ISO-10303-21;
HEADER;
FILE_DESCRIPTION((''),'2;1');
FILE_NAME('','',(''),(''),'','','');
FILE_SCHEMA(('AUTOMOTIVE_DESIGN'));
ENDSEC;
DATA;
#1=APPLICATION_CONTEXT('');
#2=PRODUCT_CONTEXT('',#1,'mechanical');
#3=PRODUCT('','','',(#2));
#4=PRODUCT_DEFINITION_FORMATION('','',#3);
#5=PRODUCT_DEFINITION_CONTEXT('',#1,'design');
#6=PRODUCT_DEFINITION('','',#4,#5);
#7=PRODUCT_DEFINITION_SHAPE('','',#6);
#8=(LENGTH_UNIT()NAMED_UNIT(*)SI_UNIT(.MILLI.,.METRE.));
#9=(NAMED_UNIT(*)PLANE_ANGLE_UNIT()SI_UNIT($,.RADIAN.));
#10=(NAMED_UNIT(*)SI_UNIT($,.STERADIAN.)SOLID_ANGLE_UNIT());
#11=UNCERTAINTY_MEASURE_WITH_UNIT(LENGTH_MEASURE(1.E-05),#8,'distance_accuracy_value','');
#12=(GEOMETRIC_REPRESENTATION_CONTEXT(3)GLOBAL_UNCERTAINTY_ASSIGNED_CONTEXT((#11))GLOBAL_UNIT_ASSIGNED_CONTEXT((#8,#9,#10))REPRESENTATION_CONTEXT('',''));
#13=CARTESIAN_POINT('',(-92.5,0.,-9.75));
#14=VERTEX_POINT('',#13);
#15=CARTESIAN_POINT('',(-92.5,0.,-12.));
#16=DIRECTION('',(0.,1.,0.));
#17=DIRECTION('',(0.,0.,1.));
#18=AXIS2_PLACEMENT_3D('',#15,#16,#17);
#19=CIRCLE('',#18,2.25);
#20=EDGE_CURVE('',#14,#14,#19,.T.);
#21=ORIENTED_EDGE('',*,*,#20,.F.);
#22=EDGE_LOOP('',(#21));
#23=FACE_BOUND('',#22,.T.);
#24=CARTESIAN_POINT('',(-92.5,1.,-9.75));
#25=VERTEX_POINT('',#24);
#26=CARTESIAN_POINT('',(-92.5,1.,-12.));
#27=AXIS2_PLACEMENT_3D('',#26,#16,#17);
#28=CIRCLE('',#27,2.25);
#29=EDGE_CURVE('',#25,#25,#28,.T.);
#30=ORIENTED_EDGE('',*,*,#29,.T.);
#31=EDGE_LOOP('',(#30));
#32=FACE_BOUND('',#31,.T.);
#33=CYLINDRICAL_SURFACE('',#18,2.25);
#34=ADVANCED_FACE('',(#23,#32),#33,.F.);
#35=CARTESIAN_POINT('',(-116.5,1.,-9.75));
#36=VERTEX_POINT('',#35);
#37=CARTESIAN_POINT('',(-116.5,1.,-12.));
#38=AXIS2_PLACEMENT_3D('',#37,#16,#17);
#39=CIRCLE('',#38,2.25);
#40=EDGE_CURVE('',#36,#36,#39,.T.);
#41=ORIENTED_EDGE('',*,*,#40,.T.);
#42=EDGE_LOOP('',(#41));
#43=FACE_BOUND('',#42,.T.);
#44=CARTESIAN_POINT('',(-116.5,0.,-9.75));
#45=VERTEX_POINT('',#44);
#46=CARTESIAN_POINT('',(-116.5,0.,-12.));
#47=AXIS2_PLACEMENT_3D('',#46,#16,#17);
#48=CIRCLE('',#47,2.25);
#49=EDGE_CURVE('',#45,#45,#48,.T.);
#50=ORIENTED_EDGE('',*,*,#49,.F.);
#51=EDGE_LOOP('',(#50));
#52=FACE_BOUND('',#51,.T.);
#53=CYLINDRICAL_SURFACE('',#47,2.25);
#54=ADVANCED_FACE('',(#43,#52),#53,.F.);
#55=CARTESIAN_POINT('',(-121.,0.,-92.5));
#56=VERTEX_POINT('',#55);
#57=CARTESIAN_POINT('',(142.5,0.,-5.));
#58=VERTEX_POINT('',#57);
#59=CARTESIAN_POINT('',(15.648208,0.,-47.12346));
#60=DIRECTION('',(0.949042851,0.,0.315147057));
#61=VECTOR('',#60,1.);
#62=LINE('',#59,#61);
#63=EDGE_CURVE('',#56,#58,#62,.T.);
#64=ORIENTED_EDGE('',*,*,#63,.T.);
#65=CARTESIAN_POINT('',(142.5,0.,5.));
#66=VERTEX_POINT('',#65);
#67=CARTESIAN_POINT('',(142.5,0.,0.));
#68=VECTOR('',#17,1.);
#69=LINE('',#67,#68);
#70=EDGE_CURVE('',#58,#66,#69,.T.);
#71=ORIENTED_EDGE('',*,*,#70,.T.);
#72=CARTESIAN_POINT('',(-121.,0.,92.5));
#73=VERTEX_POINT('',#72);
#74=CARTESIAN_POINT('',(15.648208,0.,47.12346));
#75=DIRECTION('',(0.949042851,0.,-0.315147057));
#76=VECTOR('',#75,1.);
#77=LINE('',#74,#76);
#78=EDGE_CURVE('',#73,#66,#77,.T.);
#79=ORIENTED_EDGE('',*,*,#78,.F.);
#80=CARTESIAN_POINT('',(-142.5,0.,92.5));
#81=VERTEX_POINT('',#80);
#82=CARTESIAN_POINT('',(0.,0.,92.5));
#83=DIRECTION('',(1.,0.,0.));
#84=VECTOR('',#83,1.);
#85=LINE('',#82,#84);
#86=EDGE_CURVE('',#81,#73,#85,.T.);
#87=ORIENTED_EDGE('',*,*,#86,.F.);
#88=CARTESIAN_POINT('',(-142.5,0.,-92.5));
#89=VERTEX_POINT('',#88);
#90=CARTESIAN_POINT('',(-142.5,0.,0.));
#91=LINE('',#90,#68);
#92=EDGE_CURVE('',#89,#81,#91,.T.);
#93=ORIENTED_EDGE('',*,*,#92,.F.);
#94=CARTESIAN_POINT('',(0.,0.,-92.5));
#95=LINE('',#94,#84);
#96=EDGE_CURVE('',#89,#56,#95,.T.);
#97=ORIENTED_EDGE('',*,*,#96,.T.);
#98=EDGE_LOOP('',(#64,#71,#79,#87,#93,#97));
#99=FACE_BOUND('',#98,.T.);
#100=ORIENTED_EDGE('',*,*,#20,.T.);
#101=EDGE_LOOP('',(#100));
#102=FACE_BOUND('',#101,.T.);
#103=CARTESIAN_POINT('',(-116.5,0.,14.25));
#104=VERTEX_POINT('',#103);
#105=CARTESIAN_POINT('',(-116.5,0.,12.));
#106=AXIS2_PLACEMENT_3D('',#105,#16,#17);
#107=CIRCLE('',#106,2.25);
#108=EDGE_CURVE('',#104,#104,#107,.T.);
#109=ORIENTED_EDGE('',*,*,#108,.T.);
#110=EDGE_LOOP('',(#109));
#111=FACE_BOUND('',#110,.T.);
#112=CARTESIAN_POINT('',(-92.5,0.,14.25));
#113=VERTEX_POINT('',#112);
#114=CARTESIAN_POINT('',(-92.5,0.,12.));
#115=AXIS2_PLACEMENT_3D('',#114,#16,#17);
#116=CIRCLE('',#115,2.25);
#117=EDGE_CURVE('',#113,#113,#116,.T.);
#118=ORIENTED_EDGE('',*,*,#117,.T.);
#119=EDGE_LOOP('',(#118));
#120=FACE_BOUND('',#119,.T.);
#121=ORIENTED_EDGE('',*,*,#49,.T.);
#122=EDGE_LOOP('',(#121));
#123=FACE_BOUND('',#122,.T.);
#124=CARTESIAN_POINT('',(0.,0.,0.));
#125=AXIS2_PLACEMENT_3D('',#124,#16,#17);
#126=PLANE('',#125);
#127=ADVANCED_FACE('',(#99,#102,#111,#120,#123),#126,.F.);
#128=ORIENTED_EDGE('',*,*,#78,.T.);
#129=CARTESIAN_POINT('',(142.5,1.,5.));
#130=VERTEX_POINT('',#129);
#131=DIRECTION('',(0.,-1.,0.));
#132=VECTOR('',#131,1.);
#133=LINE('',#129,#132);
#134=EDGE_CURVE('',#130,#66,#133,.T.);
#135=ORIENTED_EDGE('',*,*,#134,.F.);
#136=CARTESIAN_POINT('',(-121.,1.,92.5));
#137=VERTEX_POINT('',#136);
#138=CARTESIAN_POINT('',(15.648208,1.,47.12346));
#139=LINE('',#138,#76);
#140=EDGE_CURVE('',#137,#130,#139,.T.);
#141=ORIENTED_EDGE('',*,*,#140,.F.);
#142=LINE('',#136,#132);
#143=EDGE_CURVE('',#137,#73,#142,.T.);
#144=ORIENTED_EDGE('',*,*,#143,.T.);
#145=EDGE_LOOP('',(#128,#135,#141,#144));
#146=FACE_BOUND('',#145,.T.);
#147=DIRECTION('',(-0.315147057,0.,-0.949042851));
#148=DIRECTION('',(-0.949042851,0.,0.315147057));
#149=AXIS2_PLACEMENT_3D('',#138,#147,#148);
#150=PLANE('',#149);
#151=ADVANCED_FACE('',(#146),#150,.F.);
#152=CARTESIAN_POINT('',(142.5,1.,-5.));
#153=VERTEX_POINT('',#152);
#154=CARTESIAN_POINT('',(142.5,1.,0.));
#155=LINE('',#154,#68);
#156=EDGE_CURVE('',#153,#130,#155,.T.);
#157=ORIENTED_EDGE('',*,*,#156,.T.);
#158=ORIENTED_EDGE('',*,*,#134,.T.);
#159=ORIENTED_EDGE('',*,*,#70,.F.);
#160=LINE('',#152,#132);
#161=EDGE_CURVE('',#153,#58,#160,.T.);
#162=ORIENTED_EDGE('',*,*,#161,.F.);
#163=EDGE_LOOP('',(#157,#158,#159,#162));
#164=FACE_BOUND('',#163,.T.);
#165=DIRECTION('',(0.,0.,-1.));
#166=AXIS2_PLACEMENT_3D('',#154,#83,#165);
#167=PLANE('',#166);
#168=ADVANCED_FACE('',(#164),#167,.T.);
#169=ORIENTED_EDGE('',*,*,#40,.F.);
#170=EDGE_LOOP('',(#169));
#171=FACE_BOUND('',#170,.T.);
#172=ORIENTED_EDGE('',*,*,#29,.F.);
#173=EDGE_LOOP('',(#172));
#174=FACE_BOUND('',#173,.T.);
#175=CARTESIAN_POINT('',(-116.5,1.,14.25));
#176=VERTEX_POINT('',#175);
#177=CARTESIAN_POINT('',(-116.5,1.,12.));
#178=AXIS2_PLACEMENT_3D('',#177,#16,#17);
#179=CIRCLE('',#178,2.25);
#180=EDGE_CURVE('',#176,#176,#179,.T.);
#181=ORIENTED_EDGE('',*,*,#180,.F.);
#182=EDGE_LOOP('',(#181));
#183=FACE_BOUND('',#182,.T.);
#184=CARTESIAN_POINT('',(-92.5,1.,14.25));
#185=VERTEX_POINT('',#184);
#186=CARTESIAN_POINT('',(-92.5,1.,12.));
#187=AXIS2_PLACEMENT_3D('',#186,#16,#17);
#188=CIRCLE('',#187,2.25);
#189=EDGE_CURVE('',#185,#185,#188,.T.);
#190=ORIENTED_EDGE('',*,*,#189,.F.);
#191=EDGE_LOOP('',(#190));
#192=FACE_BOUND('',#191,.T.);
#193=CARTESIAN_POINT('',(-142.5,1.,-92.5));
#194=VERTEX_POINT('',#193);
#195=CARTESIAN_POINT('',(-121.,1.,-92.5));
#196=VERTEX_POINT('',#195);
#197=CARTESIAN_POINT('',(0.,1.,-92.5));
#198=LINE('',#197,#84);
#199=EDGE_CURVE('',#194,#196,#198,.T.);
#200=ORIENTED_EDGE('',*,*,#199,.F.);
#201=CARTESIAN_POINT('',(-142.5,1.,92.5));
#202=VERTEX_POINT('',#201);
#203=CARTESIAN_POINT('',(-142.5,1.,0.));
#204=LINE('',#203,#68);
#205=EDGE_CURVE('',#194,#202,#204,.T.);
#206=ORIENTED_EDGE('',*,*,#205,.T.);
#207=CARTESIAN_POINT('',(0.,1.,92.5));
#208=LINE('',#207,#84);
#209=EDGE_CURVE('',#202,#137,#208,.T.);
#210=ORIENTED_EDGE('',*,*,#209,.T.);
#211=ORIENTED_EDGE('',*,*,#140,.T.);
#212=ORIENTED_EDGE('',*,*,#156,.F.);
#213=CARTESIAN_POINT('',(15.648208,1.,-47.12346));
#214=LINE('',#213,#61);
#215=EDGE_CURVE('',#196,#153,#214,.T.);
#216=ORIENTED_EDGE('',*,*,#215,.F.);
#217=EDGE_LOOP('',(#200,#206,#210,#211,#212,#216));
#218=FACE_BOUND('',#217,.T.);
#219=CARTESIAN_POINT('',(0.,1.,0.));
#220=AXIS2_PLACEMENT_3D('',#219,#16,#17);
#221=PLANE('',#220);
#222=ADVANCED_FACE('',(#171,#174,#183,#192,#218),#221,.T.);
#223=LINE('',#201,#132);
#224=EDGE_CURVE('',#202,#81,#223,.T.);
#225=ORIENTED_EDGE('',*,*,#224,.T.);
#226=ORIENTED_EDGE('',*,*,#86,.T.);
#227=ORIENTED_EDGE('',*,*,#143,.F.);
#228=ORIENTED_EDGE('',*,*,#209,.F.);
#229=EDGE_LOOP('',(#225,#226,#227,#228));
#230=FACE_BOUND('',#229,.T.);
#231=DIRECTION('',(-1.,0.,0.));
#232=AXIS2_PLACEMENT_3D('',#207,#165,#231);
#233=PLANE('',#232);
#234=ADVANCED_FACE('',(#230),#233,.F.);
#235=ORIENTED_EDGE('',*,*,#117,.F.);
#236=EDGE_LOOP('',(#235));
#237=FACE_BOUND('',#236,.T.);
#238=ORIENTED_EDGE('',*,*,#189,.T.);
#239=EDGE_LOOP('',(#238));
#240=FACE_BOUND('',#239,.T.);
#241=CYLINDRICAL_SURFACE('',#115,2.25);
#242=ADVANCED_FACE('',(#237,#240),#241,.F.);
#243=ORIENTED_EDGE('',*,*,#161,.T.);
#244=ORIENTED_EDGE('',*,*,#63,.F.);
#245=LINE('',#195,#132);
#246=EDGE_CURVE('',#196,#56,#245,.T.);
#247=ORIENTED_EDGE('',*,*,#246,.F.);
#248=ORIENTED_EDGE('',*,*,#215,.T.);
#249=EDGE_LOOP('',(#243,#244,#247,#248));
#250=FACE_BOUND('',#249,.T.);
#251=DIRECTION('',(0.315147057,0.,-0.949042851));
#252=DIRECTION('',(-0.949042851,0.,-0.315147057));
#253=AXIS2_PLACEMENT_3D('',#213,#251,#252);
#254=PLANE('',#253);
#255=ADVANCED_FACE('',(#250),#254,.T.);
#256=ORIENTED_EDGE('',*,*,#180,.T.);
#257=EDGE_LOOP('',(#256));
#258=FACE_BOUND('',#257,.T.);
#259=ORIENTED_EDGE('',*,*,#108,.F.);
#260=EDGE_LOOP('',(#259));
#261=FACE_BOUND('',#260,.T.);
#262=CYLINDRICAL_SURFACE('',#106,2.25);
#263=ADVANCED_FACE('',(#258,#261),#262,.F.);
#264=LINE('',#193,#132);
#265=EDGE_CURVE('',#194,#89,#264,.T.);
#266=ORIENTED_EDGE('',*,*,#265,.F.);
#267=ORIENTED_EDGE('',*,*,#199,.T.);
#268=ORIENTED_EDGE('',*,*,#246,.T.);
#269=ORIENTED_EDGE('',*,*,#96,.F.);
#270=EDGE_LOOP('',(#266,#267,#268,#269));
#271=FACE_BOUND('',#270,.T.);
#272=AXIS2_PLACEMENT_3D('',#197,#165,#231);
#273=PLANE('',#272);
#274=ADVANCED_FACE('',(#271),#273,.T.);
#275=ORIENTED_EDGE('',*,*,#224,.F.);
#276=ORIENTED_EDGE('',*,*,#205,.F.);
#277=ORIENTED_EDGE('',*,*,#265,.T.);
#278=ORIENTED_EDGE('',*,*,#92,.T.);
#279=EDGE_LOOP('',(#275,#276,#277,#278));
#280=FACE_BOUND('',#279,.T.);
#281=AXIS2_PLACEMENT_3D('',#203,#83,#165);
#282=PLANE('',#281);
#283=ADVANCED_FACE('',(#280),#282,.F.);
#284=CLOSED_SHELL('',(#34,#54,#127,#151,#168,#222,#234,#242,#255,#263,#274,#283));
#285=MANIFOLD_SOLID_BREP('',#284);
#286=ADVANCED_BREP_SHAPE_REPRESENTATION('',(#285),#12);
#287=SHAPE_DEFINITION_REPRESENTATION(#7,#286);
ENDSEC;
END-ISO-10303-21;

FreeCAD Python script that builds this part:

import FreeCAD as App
import Part
import Sketcher
from FreeCAD import Vector

doc = App.newDocument("Part")
params = doc.addObject("Spreadsheet::Sheet", "Params")
for row, (alias, value) in enumerate([
    ("sketch1_height", "10 mm"),
    ("sketch1_height2", "185 mm"),
    ("sketch1_width", "21.5 mm"),
    ("pad1_length", "1 mm"),
    ("sketch2_diameter", "4.5 mm"),
    ("pocket1_length", "1 mm"),
], start=1):
    params.set(f"A{row}", alias)
    params.set(f"B{row}", "=" + value)
    params.setAlias(f"B{row}", alias)

body = doc.addObject("PartDesign::Body", "Body")

sketch1 = body.newObject("Sketcher::SketchObject", "Sketch")
sketch1.AttachmentSupport = (doc.getObject("XZ_Plane"), [""])
sketch1.MapMode = "FlatFace"
sketch1.addGeometry(Part.LineSegment(Vector(-142, 92, 0), Vector(-121, 92, 0)), False)
sketch1.addGeometry(Part.LineSegment(Vector(-121, 92, 0), Vector(142, 5, 0)), False)
sketch1.addGeometry(Part.LineSegment(Vector(142, 5, 0), Vector(142, -5, 0)), False)
sketch1.addGeometry(Part.LineSegment(Vector(142, -5, 0), Vector(-121, -92, 0)), False)
sketch1.addGeometry(Part.LineSegment(Vector(-121, -92, 0), Vector(-142, -92, 0)), False)
sketch1.addGeometry(Part.LineSegment(Vector(-142, -92, 0), Vector(-142, 92, 0)), False)
sketch1.addConstraint(Sketcher.Constraint("Coincident", 0, 2, 1, 1))
sketch1.addConstraint(Sketcher.Constraint("Coincident", 1, 2, 2, 1))
sketch1.addConstraint(Sketcher.Constraint("Coincident", 2, 2, 3, 1))
sketch1.addConstraint(Sketcher.Constraint("Coincident", 3, 2, 4, 1))
sketch1.addConstraint(Sketcher.Constraint("Coincident", 4, 2, 5, 1))
sketch1.addConstraint(Sketcher.Constraint("Coincident", 5, 2, 0, 1))
sketch1.addConstraint(Sketcher.Constraint("Horizontal", 0))
sketch1.addConstraint(Sketcher.Constraint("Vertical", 2))
sketch1.addConstraint(Sketcher.Constraint("Horizontal", 4))
sketch1.addConstraint(Sketcher.Constraint("Vertical", 5))
sketch1.addConstraint(Sketcher.Constraint("Symmetric", 0, 2, 3, 2, -1))
sketch1.addConstraint(Sketcher.Constraint("Equal", 1, 3))
sketch1.addConstraint(Sketcher.Constraint("DistanceY", 2, 2, 2, 1, 10.0))
sketch1.addConstraint(Sketcher.Constraint("DistanceY", 5, 1, 5, 2, 185.0))
sketch1.addConstraint(Sketcher.Constraint("DistanceX", 0, 1, 0, 2, 21.5))
sketch1.addConstraint(Sketcher.Constraint("DistanceX", 0, 2, -1, 1, 121.0))
sketch1.addConstraint(Sketcher.Constraint("DistanceX", 4, 2, 2, 2, 285.0))
sketch1.setExpression("Constraints[12]", "Params.sketch1_height")
sketch1.setExpression("Constraints[13]", "Params.sketch1_height2")
sketch1.setExpression("Constraints[14]", "Params.sketch1_width")
pad1 = body.newObject("PartDesign::Pad", "Pad")
pad1.Profile = sketch1
pad1.setExpression("Length", "Params.pad1_length")
pad1.Reversed = True

sketch2 = body.newObject("Sketcher::SketchObject", "Sketch001")
sketch2.AttachmentSupport = (doc.getObject("XZ_Plane"), [""])
sketch2.MapMode = "FlatFace"
sketch2.AttachmentOffset = App.Placement(Vector(0, 0, -1), App.Rotation())
sketch2.addGeometry(Part.Circle(Vector(-116.5, -12, 0), Vector(0, 0, 1), 2.2), False)
sketch2.addGeometry(Part.Circle(Vector(-92.5, -12, 0), Vector(0, 0, 1), 2.2), False)
sketch2.addGeometry(Part.Circle(Vector(-116.5, 12, 0), Vector(0, 0, 1), 2.2), False)
sketch2.addGeometry(Part.Circle(Vector(-92.5, 12, 0), Vector(0, 0, 1), 2.2), False)
sketch2.addConstraint(Sketcher.Constraint("Equal", 0, 1))
sketch2.addConstraint(Sketcher.Constraint("Equal", 1, 2))
sketch2.addConstraint(Sketcher.Constraint("Equal", 2, 3))
sketch2.addConstraint(Sketcher.Constraint("Symmetric", 0, 3, 2, 3, -1))
sketch2.addConstraint(Sketcher.Constraint("Symmetric", 1, 3, 3, 3, -1))
sketch2.addConstraint(Sketcher.Constraint("Horizontal", 0, 3, 1, 3))
sketch2.addConstraint(Sketcher.Constraint("Diameter", 0, 4.5))
sketch2.addConstraint(Sketcher.Constraint("DistanceY", 0, 3, -1, 1, 12.0))
sketch2.addConstraint(Sketcher.Constraint("DistanceX", 0, 3, 1, 3, 24.0))
sketch2.addConstraint(Sketcher.Constraint("DistanceX", 0, 3, -1, 1, 116.5))
sketch2.setExpression("Constraints[6]", "Params.sketch2_diameter")
pocket1 = body.newObject("PartDesign::Pocket", "Pocket")
pocket1.Profile = sketch2
pocket1.setExpression("Length", "Params.pocket1_length")
pocket1.Reversed = True

doc.recompute()
